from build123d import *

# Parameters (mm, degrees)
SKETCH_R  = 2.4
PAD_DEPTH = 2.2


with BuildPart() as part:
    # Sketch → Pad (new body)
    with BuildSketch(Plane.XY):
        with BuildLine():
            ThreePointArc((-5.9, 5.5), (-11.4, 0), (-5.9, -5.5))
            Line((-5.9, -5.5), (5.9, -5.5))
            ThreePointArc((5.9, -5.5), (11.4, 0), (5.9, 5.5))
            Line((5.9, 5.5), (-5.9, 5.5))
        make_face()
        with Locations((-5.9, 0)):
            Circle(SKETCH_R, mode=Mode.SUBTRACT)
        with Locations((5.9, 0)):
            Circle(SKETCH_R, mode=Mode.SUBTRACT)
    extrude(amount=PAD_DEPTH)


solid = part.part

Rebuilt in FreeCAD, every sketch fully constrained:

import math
import FreeCAD as App
import Part
import Sketcher
Q = App.Units.Quantity

doc = App.newDocument("Part")
params = doc.addObject("Spreadsheet::Sheet", "Params")
for row, (alias, value) in enumerate([
    ("sketch1_diameter", "4.8 mm"),
    ("sketch1_radius", "5.5 mm"),
    ("sketch1_width", "11.8 mm"),
    ("pad1_length", "2.2 mm"),
], start=1):
    params.set(f"A{row}", alias)
    params.set(f"B{row}", "=" + value)
    params.setAlias(f"B{row}", alias)

body = doc.addObject("PartDesign::Body", "Body")

sketch1 = body.newObject("Sketcher::SketchObject", "Sketch")
sketch1.AttachmentSupport = (doc.getObject("XY_Plane"), [""])
sketch1.MapMode = "FlatFace"
sketch1.addGeometry(Part.ArcOfCircle(Part.Circle(App.Vector(-5.9, 0, 0), App.Vector(0, 0, 1), 5.5), math.radians(90), math.radians(270)), False)
sketch1.addGeometry(Part.LineSegment(App.Vector(-5.9, -5.5, 0), App.Vector(5.9, -5.5, 0)), False)
sketch1.addGeometry(Part.ArcOfCircle(Part.Circle(App.Vector(5.9, 0, 0), App.Vector(0, 0, 1), 5.5), math.radians(-90), math.radians(90)), False)
sketch1.addGeometry(Part.LineSegment(App.Vector(5.9, 5.5, 0), App.Vector(-5.9, 5.5, 0)), False)
sketch1.addGeometry(Part.Circle(App.Vector(-5.9, 0, 0), App.Vector(0, 0, 1), 2.4), False)
sketch1.addGeometry(Part.Circle(App.Vector(5.9, 0, 0), App.Vector(0, 0, 1), 2.4), False)
sketch1.addConstraint(Sketcher.Constraint("Tangent", 0, 2, 1, 1))
sketch1.addConstraint(Sketcher.Constraint("Tangent", 1, 2, 2, 1))
sketch1.addConstraint(Sketcher.Constraint("Tangent", 2, 2, 3, 1))
sketch1.addConstraint(Sketcher.Constraint("Tangent", 3, 2, 0, 1))
sketch1.addConstraint(Sketcher.Constraint("Horizontal", 1))
sketch1.addConstraint(Sketcher.Constraint("Horizontal", 3))
sketch1.addConstraint(Sketcher.Constraint("Coincident", 4, 3, 0, 3))
sketch1.addConstraint(Sketcher.Constraint("Coincident", 5, 3, 2, 3))
sketch1.addConstraint(Sketcher.Constraint("Equal", 4, 5))
sketch1.addConstraint(Sketcher.Constraint("Symmetric", 0, 3, 2, 3, -1, 1))
sketch1.addConstraint(Sketcher.Constraint("Diameter", 4, Q("4.8 mm")))
sketch1.addConstraint(Sketcher.Constraint("Radius", 0, Q("5.5 mm")))
sketch1.addConstraint(Sketcher.Constraint("DistanceX", 1, 1, 1, 2, Q("11.8 mm")))
sketch1.setExpression("Constraints[10]", "Params.sketch1_diameter")
sketch1.setExpression("Constraints[11]", "Params.sketch1_radius")
sketch1.setExpression("Constraints[12]", "Params.sketch1_width")
pad1 = body.newObject("PartDesign::Pad", "Pad")
pad1.Profile = sketch1
pad1.setExpression("Length", "Params.pad1_length")

doc.recompute()
